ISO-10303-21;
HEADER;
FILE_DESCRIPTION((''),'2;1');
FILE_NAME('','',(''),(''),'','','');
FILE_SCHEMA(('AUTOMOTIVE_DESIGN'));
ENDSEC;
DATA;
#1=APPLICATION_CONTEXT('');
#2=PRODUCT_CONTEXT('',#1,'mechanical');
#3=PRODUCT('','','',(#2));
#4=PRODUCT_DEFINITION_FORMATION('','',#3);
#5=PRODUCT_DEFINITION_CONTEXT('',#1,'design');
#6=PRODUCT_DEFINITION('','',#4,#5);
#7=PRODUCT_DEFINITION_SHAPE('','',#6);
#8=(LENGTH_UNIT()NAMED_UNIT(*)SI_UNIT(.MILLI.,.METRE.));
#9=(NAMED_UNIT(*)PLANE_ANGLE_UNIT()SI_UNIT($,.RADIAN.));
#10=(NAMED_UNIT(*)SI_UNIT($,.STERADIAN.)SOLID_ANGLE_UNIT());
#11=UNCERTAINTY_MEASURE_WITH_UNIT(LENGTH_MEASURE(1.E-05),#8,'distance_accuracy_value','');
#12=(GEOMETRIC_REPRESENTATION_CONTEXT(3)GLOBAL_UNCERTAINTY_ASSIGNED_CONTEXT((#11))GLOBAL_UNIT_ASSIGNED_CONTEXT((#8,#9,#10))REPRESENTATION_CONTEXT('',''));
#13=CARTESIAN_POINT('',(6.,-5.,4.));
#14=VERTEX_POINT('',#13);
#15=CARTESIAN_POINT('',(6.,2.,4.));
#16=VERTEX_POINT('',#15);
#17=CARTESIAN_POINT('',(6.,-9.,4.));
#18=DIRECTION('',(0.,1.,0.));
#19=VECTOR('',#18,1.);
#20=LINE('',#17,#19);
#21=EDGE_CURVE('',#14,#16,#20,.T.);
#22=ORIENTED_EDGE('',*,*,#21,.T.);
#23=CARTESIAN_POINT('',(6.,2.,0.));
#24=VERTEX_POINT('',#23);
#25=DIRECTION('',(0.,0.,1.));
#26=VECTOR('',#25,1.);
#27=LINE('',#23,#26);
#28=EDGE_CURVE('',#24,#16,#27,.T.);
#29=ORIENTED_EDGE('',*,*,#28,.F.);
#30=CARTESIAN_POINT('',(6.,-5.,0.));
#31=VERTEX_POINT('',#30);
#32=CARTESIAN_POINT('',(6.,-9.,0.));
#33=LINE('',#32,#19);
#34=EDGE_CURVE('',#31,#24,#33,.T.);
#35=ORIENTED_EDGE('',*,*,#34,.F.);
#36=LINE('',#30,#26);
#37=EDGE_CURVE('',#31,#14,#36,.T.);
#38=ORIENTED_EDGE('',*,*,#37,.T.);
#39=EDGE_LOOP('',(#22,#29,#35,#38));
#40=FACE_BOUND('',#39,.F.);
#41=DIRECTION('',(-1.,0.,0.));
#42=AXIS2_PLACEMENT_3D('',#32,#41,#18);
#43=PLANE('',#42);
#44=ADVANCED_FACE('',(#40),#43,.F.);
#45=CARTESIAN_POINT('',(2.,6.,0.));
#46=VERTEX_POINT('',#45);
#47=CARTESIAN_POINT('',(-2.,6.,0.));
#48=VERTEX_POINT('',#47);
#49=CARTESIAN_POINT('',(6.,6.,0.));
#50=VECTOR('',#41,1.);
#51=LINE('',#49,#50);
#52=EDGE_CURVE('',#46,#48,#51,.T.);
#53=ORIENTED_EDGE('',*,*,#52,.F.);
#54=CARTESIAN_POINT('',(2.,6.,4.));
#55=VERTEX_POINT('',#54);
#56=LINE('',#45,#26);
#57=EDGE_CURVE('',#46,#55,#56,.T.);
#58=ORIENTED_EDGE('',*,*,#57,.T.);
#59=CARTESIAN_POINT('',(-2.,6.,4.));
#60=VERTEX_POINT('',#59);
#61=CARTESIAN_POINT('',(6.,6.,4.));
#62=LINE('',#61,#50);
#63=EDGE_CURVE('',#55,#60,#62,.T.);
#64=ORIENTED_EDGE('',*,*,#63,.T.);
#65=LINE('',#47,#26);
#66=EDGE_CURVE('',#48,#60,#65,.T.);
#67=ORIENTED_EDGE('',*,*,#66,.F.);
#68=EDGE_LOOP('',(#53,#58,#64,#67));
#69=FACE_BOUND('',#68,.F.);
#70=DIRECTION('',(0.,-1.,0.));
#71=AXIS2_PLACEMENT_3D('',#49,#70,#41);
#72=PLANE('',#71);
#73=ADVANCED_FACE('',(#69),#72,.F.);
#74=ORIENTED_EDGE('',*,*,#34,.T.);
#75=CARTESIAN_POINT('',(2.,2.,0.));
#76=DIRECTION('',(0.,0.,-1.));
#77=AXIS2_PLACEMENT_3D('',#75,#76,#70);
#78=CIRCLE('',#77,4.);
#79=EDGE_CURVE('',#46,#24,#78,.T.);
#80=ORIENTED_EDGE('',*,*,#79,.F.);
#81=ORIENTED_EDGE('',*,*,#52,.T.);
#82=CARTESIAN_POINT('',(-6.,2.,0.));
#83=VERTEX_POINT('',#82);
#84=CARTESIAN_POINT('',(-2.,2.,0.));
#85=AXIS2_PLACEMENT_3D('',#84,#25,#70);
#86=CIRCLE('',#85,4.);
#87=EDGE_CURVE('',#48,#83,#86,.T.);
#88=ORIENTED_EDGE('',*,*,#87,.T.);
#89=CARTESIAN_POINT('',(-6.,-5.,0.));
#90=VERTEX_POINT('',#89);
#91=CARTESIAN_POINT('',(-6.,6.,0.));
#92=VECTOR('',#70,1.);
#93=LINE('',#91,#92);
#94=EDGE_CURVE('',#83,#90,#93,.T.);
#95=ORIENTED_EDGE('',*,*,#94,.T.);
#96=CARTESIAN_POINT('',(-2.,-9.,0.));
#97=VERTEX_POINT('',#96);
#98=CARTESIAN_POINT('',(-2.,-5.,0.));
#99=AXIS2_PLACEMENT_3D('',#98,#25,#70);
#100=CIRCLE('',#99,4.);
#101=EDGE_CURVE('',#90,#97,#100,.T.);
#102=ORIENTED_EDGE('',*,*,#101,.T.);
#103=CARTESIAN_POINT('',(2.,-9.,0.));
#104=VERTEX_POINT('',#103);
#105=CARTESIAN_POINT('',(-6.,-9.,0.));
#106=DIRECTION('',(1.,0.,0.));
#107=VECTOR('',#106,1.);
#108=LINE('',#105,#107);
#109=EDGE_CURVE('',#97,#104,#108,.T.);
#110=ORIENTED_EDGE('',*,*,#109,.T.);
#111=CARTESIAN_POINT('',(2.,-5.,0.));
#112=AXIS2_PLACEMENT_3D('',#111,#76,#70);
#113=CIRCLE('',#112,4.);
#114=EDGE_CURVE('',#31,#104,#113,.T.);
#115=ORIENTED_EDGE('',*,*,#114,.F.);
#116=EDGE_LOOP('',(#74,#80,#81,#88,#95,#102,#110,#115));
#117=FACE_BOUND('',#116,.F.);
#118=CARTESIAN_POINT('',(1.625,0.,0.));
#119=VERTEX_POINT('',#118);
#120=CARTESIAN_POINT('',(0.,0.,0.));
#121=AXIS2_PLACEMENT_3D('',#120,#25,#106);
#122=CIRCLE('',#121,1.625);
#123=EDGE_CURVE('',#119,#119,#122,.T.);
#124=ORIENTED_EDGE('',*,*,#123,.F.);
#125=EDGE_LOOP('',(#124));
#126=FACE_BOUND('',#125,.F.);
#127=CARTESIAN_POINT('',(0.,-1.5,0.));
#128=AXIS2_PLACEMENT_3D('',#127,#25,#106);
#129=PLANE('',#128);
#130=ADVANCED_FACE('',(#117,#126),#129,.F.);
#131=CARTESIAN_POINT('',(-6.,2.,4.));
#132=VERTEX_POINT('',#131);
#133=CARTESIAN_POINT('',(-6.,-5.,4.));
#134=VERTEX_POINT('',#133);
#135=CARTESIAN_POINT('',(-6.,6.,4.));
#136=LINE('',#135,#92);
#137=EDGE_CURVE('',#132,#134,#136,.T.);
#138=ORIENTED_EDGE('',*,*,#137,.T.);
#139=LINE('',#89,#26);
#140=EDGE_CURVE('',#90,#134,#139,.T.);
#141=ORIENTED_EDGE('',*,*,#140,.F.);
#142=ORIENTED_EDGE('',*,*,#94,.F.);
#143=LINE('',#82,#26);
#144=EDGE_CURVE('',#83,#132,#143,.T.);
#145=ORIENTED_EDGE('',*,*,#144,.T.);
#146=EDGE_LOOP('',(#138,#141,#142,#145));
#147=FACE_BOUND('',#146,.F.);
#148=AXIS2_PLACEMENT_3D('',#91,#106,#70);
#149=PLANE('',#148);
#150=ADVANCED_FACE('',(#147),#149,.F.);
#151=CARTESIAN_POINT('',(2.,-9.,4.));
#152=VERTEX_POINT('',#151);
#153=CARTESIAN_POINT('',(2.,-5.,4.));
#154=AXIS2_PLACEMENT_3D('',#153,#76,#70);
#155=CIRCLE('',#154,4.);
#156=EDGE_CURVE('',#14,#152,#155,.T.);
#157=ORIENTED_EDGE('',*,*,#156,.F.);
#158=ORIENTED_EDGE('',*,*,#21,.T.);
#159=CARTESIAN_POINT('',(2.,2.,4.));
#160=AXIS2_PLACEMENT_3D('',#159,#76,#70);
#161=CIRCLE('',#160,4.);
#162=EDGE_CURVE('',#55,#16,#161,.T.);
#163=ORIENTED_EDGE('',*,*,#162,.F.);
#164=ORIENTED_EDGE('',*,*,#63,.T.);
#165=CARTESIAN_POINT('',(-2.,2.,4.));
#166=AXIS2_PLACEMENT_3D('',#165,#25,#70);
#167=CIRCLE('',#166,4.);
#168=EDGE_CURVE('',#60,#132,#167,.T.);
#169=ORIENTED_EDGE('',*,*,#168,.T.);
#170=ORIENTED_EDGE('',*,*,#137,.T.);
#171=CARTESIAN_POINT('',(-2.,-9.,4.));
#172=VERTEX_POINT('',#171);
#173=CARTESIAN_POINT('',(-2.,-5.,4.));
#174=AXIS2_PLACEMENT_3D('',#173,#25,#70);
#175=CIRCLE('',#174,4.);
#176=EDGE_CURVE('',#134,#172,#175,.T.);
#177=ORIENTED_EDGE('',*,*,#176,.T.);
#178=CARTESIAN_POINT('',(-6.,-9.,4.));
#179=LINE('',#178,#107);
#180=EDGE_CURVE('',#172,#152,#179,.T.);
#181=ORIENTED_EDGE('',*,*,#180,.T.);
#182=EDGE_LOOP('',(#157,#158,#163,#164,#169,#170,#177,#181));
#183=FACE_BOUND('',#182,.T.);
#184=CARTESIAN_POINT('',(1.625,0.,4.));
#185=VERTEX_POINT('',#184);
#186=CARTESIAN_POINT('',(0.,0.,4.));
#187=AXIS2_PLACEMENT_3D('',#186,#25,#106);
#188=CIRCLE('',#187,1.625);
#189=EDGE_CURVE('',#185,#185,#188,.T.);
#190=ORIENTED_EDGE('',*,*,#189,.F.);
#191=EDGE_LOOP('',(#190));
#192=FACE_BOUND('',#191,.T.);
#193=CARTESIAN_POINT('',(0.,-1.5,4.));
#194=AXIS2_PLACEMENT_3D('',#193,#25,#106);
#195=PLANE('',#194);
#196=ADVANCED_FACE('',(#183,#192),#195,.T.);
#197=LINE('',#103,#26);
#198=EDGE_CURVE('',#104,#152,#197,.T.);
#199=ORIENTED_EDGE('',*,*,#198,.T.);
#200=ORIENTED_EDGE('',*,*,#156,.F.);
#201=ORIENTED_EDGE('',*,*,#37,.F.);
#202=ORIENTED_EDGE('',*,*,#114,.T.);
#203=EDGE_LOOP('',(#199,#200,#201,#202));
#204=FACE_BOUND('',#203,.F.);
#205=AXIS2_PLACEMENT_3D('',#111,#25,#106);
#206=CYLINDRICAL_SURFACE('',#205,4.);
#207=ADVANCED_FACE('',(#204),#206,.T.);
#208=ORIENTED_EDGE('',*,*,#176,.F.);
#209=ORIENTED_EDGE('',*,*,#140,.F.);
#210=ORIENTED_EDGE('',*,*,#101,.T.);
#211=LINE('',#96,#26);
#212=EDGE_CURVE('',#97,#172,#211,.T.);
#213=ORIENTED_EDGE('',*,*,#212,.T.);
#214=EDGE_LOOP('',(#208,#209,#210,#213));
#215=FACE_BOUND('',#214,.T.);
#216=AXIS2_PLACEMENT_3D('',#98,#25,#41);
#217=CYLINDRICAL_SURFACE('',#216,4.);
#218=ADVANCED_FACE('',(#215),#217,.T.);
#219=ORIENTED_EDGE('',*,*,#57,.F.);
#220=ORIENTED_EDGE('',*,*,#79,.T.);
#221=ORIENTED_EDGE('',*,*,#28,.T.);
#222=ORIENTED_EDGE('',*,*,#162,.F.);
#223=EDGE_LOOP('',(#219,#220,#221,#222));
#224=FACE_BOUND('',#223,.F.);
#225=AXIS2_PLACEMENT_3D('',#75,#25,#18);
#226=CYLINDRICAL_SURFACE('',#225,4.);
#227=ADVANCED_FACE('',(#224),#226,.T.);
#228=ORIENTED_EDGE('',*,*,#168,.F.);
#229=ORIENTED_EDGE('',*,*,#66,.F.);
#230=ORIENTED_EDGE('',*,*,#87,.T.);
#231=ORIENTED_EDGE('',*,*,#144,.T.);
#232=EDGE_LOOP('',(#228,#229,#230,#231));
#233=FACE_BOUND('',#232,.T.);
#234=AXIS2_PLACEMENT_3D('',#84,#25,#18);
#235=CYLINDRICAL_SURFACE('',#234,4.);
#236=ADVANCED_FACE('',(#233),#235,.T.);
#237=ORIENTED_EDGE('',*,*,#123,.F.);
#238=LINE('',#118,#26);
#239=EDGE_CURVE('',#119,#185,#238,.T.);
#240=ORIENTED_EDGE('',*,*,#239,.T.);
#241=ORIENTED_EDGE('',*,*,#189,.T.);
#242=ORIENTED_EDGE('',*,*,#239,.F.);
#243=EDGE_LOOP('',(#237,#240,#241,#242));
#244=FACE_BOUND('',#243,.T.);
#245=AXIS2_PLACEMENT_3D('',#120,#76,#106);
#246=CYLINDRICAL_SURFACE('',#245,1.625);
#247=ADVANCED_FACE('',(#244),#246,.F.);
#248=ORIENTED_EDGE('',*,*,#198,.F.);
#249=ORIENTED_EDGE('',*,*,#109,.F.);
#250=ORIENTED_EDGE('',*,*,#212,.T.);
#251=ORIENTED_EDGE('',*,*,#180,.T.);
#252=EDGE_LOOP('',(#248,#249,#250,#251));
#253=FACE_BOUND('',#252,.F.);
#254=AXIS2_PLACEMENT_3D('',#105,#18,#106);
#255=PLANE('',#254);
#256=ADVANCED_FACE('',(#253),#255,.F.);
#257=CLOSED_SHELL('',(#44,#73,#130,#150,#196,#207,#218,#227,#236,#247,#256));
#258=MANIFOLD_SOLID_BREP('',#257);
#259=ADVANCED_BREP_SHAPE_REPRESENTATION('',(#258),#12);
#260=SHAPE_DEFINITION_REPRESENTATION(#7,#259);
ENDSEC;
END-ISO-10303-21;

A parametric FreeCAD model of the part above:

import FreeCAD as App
import Part
import Sketcher
from FreeCAD import Vector


def edges_at(feature, points):
    """Names of the edges that pass closest to the given points."""
    edges = feature.Shape.Edges
    near = lambda p: min(range(len(edges)), key=lambda i: edges[i].distToShape(Part.Vertex(*p))[0])
    return sorted({f"Edge{near(p) + 1}" for p in points})


def add_polygon(sketch, points):
    """Adds a closed chain of lines whose ends are joined by coincident constraints."""
    first, n = sketch.GeometryCount, len(points)
    for a, b in zip(points, points[1:] + points[:1]):
        sketch.addGeometry(Part.LineSegment(App.Vector(*a, 0), App.Vector(*b, 0)), False)
    for i in range(n):
        sketch.addConstraint(Sketcher.Constraint("Coincident", first + i, 2, first + (i + 1) % n, 1))

doc = App.newDocument("Part")
body = doc.addObject("PartDesign::Body", "Body")

sketch1 = doc.addObject("Sketcher::SketchObject", "Sketch")
body.addObject(sketch1)
sketch1.AttachmentSupport = (doc.XY_Plane, [""])
sketch1.MapMode = "FlatFace"
add_polygon(sketch1, [(6, 6), (-6, 6), (-6, -9), (6, -9)])
sketch1.addGeometry(Part.Circle(Vector(0, 0, 0), Vector(0, 0, 1), 1.625), False)
sketch1.addConstraint([
    Sketcher.Constraint("Horizontal", 0),
    Sketcher.Constraint("Vertical", 1),
    Sketcher.Constraint("Horizontal", 2),
    Sketcher.Constraint("Vertical", 3),
    Sketcher.Constraint("Coincident", 4, 3, -1, 1),
    Sketcher.Constraint("Diameter", 4, 3.25),
    Sketcher.Constraint("DistanceX", 0, 2, 0, 1, 12.0),
    Sketcher.Constraint("DistanceY", 1, 2, 1, 1, 15.0),
    Sketcher.Constraint("DistanceX", 0, 2, -1, 1, 6.0),
    Sketcher.Constraint("DistanceY", -1, 1, 0, 2, 6.0),
])
pad1 = doc.addObject("PartDesign::Pad", "Pad")
body.addObject(pad1)
pad1.Profile = sketch1
pad1.Length = 4
doc.recompute()

fillet = doc.addObject("PartDesign::Fillet", "Fillet")
body.addObject(fillet)
fillet.Base = (pad1, edges_at(pad1, [
    (-6, 6, 2),
    (-6, -9, 2),
    (6, -9, 2),
    (6, 6, 2),
]))
fillet.Radius = 4

doc.recompute()
